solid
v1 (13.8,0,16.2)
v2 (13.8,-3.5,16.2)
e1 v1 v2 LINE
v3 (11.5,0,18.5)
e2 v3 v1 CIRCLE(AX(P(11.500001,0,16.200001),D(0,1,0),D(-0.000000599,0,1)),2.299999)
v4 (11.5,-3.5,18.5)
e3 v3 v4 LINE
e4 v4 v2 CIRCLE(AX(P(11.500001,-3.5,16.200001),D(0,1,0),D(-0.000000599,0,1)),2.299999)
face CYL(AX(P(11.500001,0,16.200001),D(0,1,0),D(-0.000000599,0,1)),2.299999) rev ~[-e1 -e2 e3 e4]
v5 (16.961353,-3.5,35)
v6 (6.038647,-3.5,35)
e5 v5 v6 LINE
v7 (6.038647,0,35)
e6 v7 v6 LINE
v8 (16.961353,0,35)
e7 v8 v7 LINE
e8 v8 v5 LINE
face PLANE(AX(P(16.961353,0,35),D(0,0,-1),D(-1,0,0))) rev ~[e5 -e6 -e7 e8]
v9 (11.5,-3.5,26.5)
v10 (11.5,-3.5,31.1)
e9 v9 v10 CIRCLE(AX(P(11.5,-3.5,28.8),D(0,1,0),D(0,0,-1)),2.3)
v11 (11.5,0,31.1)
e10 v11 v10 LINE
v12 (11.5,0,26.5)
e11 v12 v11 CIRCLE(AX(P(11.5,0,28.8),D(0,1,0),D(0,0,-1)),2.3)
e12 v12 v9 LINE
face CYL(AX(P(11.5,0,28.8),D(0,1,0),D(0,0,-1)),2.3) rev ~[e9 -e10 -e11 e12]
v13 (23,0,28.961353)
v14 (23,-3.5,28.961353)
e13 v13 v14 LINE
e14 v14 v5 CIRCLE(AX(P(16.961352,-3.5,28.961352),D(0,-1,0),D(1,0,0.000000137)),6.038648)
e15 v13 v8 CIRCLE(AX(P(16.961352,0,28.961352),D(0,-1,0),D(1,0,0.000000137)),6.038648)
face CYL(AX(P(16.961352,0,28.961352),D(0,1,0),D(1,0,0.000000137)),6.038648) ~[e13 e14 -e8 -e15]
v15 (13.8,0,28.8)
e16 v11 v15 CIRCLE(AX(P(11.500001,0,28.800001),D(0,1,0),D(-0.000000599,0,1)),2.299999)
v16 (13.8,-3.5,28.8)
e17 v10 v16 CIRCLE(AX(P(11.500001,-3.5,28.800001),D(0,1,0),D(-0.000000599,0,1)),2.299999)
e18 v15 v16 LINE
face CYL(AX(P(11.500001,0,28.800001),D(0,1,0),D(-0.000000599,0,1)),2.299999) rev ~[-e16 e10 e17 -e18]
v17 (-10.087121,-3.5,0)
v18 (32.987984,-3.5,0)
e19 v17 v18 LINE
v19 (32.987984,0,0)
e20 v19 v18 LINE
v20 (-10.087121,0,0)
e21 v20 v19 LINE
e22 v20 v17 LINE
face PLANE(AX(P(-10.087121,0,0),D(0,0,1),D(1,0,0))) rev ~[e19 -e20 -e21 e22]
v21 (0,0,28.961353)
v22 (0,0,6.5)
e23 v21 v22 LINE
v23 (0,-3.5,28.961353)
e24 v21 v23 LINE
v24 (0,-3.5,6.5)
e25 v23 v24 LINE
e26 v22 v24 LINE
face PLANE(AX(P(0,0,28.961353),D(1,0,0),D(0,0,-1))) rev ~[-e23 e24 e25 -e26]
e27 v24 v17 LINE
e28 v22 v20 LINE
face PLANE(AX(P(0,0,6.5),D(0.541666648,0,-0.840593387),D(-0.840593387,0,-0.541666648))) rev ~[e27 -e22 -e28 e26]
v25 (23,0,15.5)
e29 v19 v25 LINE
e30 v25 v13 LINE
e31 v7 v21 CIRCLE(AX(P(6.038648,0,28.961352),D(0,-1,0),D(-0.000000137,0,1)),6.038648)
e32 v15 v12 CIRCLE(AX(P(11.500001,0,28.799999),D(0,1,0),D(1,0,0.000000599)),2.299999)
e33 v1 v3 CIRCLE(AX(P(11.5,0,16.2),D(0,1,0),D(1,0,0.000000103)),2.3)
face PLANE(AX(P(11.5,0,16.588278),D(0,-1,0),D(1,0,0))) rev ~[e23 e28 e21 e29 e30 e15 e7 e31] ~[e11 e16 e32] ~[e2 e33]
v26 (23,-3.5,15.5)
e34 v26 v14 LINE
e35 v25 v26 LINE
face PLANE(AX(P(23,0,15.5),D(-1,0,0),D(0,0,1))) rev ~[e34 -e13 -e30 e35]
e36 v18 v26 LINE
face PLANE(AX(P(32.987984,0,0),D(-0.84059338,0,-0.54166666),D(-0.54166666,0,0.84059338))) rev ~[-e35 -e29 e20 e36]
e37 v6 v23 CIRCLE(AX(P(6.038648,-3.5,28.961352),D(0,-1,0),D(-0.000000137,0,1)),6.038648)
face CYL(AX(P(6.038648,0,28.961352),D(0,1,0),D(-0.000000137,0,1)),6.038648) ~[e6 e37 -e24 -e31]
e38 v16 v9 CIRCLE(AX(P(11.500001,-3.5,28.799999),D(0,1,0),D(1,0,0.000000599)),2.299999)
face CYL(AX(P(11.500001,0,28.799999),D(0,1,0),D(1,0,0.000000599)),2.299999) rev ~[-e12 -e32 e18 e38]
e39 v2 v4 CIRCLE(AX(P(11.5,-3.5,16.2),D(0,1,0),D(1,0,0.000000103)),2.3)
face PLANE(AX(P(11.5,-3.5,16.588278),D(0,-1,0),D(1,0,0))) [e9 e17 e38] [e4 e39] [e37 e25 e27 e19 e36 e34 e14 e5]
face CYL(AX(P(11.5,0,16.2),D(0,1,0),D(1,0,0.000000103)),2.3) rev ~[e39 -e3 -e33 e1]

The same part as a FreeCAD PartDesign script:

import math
import FreeCAD as App
import Part
import Sketcher
from FreeCAD import Vector

doc = App.newDocument("Part")
body = doc.addObject("PartDesign::Body", "Body")

# Sketch on XZ plane
sketch1 = body.newObject("Sketcher::SketchObject", "Sketch")
sketch1.AttachmentSupport = (doc.getObject("XZ_Plane"), [""])
sketch1.MapMode = "FlatFace"
sketch1.addGeometry([
    Part.LineSegment(Vector(33, 0, 0), Vector(23, 15.5, 0)),  # 0
    Part.LineSegment(Vector(23, 15.5, 0), Vector(23, 29, 0)),  # 1
    Part.ArcOfCircle(Part.Circle(Vector(17, 29, 0), Vector(0, 0, 1), 6), math.radians(0), math.radians(90)),  # 2
    Part.LineSegment(Vector(17, 35, 0), Vector(6, 35, 0)),  # 3
    Part.ArcOfCircle(Part.Circle(Vector(6, 29, 0), Vector(0, 0, 1), 6), math.radians(90), math.radians(180)),  # 4
    Part.LineSegment(Vector(0, 29, 0), Vector(0, 6.5, 0)),  # 5
    Part.LineSegment(Vector(0, 6.5, 0), Vector(-10.1, 0, 0)),  # 6
    Part.LineSegment(Vector(-10.1, 0, 0), Vector(33, 0, 0)),  # 7
    Part.ArcOfCircle(Part.Circle(Vector(11.5, 16.2, 0), Vector(0, 0, 1), 2.3), math.radians(0), math.radians(90)),  # 8
    Part.ArcOfCircle(Part.Circle(Vector(11.5, 16.2, 0), Vector(0, 0, 1), 2.3), math.radians(90), math.radians(360)),  # 9
    Part.ArcOfCircle(Part.Circle(Vector(11.5, 28.8, 0), Vector(0, 0, 1), 2.3), math.radians(-90), math.radians(0)),  # 10
    Part.ArcOfCircle(Part.Circle(Vector(11.5, 28.8, 0), Vector(0, 0, 1), 2.3), math.radians(90), math.radians(270)),  # 11
    Part.ArcOfCircle(Part.Circle(Vector(11.5, 28.8, 0), Vector(0, 0, 1), 2.3), math.radians(0), math.radians(90)),  # 12
], False)
sketch1.addConstraint([
    Sketcher.Constraint("Coincident", 0, 2, 1, 1),
    Sketcher.Constraint("Tangent", 1, 2, 2, 1),
    Sketcher.Constraint("Tangent", 2, 2, 3, 1),
    Sketcher.Constraint("Tangent", 3, 2, 4, 1),
    Sketcher.Constraint("Tangent", 4, 2, 5, 1),
    Sketcher.Constraint("Coincident", 5, 2, 6, 1),
    Sketcher.Constraint("Coincident", 6, 2, 7, 1),
    Sketcher.Constraint("Coincident", 7, 2, 0, 1),
    Sketcher.Constraint("Tangent", 8, 1, 9, 2),
    Sketcher.Constraint("Coincident", 9, 1, 8, 2),
    Sketcher.Constraint("Tangent", 10, 1, 11, 2),
    Sketcher.Constraint("Tangent", 11, 1, 12, 2),
    Sketcher.Constraint("Tangent", 12, 1, 10, 2),
    Sketcher.Constraint("Vertical", 1),
    Sketcher.Constraint("Horizontal", 3),
    Sketcher.Constraint("Vertical", 5),
    Sketcher.Constraint("Horizontal", 7),
    Sketcher.Constraint("Equal", 2, 4),
    Sketcher.Constraint("Equal", 9, 10),
    Sketcher.Constraint("PointOnObject", 4, 2, -2),
    Sketcher.Constraint("PointOnObject", 6, 2, -1),
    Sketcher.Constraint("Perpendicular", 0, 6),
    Sketcher.Constraint("Horizontal", 9, 3, 8, 1),
    Sketcher.Constraint("Horizontal", 11, 3, 12, 1),
    Sketcher.Constraint("Vertical", 9, 3, 10, 3),
    Sketcher.Constraint("Vertical", 12, 3, 9, 1),
    Sketcher.Constraint("Vertical", 9, 1, 10, 1),
    Sketcher.Constraint("Vertical", 10, 1, 11, 1),
    Sketcher.Constraint("Radius", 8, 2.299999),
    Sketcher.Constraint("Distance", 6, 12.0),
    Sketcher.Constraint("DistanceX", -1, 1, 0, 2, 23.0),
    Sketcher.Constraint("DistanceY", -1, 1, 2, 2, 35.0),
    Sketcher.Constraint("DistanceY", 5, 2, 0, 2, 9.0),
    Sketcher.Constraint("DistanceX", -1, 1, 8, 3, 11.500001),
    Sketcher.Constraint("DistanceY", -1, 1, 8, 3, 16.200001),
    Sketcher.Constraint("DistanceY", -1, 1, 10, 3, 28.799999),
    Sketcher.Constraint("DistanceY", -1, 1, 0, 2, 15.5),
    Sketcher.Constraint("Radius", 2, 6.038648),
])
pad1 = body.newObject("PartDesign::Pad", "Pad")
pad1.Profile = sketch1
pad1.Length = 3.5

doc.recompute()
